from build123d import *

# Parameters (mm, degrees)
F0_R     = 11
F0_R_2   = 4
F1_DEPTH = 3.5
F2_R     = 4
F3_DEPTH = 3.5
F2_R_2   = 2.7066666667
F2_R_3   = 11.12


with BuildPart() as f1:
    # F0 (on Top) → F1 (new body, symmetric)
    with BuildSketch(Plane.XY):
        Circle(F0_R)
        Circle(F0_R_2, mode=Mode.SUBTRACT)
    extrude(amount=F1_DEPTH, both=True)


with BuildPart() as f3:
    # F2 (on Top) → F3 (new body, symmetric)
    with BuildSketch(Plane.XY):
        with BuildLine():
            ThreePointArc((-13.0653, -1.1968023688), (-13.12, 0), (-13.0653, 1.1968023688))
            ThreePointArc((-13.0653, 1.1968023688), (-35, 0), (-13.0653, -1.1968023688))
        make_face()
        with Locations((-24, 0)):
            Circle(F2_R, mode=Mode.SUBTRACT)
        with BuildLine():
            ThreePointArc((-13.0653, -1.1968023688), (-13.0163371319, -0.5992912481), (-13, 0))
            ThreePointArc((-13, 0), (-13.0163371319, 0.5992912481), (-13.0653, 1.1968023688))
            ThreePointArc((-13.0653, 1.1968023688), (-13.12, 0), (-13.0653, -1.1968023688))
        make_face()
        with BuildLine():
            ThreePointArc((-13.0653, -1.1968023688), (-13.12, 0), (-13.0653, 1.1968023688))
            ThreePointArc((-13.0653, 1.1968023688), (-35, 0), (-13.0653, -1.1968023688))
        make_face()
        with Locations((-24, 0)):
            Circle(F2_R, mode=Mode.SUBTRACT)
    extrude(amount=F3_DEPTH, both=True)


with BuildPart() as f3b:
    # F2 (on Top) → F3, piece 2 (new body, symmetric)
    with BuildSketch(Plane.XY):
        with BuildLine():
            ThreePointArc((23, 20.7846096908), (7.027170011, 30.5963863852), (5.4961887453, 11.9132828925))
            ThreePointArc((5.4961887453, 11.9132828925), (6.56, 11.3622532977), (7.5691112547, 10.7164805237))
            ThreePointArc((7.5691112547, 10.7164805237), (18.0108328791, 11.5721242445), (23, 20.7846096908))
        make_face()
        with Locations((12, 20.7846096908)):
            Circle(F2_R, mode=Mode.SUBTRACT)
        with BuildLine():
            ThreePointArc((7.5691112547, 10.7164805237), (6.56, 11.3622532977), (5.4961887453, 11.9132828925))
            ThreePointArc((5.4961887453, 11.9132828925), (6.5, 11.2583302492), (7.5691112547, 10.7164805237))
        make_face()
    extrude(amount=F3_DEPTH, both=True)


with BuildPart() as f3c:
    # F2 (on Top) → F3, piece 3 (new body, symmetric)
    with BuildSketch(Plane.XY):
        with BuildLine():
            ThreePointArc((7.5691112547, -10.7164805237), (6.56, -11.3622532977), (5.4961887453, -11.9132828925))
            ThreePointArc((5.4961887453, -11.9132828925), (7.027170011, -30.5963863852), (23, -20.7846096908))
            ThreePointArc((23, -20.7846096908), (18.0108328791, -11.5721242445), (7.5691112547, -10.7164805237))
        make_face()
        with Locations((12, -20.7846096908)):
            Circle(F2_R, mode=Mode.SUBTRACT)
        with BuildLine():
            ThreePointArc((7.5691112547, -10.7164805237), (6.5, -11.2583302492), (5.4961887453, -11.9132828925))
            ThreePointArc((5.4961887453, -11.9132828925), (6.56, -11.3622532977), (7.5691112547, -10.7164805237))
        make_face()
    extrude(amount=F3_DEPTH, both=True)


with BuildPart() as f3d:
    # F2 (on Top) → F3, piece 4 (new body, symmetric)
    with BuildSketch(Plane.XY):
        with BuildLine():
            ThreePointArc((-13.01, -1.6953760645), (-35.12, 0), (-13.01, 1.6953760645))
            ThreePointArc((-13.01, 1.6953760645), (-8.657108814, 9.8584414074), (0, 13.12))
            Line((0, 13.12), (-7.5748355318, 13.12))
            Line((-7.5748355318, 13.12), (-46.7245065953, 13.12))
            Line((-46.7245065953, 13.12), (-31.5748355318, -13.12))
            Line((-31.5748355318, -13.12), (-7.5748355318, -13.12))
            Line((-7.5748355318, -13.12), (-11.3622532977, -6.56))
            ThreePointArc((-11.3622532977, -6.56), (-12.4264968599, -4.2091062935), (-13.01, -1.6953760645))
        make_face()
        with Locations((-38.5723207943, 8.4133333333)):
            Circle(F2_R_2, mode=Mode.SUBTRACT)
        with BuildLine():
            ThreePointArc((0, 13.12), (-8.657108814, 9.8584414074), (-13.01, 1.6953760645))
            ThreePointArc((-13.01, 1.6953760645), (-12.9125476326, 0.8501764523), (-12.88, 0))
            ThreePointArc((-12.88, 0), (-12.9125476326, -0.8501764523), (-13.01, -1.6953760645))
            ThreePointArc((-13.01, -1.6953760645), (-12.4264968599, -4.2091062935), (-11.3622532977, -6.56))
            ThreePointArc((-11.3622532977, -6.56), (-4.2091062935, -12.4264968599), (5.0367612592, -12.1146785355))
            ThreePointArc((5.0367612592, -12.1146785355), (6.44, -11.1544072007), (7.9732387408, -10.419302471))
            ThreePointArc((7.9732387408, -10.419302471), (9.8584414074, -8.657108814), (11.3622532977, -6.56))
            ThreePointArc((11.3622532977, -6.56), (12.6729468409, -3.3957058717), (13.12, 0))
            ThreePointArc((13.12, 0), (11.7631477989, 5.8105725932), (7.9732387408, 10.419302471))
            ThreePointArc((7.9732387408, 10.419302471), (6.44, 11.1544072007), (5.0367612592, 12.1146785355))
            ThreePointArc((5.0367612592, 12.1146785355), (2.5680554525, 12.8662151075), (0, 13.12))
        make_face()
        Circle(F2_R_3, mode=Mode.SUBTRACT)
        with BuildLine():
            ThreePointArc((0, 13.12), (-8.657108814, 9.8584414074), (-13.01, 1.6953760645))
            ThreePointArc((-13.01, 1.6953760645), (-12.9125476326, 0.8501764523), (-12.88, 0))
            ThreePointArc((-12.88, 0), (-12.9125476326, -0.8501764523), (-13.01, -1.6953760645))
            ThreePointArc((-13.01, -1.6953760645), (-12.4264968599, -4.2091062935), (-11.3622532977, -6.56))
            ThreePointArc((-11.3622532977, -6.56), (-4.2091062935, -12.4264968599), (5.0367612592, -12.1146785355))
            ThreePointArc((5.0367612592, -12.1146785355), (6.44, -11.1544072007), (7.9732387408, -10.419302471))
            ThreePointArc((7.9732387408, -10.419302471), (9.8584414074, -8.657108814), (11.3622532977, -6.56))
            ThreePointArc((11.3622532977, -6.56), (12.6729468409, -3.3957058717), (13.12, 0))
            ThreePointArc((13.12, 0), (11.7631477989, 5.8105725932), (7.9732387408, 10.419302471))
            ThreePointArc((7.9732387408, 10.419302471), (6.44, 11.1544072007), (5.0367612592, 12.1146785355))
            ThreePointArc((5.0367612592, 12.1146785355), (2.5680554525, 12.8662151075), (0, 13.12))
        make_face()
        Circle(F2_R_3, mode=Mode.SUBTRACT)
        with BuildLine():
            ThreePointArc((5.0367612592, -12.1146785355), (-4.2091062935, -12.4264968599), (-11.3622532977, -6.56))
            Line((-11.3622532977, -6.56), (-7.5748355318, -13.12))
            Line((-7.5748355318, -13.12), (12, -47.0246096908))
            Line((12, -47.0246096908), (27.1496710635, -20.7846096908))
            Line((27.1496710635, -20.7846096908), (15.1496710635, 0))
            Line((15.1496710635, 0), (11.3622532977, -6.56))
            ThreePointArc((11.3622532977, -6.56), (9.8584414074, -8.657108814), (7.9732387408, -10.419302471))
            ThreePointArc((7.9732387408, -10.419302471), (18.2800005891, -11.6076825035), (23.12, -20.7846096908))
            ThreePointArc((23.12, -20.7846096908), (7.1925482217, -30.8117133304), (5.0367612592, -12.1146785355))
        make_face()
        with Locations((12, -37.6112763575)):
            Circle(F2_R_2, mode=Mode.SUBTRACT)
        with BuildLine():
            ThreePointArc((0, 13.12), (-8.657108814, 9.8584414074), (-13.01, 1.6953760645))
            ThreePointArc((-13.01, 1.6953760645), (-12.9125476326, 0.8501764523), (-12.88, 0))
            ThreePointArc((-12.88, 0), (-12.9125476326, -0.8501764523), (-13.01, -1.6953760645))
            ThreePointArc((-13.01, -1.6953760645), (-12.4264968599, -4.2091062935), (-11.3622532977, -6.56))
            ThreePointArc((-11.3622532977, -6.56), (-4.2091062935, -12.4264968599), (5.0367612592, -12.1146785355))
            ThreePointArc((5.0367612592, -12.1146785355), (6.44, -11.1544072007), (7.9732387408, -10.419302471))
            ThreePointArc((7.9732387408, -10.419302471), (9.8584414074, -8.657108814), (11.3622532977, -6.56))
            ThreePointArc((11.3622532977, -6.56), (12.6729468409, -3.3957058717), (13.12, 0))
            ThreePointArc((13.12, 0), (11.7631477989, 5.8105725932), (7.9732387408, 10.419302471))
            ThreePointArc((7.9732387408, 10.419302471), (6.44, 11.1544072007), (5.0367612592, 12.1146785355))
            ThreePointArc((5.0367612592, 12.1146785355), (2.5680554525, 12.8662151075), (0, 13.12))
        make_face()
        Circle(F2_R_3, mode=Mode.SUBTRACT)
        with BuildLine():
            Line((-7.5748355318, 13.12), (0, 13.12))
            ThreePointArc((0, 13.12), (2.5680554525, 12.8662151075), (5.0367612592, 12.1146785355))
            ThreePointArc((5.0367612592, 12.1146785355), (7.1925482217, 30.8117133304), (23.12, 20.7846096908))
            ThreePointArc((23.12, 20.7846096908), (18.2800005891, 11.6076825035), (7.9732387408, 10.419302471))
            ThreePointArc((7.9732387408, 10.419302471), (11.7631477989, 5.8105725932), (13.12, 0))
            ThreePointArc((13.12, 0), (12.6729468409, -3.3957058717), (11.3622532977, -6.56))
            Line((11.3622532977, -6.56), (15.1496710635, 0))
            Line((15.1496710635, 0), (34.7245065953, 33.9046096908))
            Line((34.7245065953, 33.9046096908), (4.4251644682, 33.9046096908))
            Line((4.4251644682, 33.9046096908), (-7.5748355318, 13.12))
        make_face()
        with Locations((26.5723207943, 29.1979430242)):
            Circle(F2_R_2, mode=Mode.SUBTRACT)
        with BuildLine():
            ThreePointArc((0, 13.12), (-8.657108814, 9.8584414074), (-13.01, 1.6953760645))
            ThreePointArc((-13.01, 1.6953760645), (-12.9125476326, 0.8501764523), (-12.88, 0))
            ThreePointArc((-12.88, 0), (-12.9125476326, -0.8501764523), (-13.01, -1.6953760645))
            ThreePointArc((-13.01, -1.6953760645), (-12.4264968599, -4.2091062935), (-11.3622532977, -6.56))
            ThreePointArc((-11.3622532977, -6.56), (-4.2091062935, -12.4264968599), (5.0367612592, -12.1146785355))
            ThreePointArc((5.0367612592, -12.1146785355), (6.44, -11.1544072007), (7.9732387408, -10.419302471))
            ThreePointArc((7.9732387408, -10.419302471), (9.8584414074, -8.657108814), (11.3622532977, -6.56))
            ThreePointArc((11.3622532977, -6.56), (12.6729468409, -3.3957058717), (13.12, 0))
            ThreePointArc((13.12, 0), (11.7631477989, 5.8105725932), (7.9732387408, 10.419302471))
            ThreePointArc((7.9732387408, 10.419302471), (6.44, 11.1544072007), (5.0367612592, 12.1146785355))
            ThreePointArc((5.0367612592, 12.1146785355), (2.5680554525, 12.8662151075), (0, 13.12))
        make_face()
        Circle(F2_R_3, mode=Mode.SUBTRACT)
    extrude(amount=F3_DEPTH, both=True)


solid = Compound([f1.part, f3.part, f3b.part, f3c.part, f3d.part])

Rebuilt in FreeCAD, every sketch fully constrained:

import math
import FreeCAD as App
import Part
import Sketcher
Q = App.Units.Quantity

doc = App.newDocument("Part")
body = doc.addObject("PartDesign::Body", "Body")

sketch1 = body.newObject("Sketcher::SketchObject", "Sketch")
sketch1.AttachmentSupport = (doc.getObject("XY_Plane"), [""])
sketch1.MapMode = "FlatFace"
sketch1.addGeometry(Part.Circle(App.Vector(0, 0, 0), App.Vector(0, 0, 1), 11), False)
sketch1.addGeometry(Part.Circle(App.Vector(0, 0, 0), App.Vector(0, 0, 1), 4), False)
sketch1.addConstraint(Sketcher.Constraint("Coincident", 0, 3, -1, 1))
sketch1.addConstraint(Sketcher.Constraint("Coincident", 1, 3, -1, 1))
sketch1.addConstraint(Sketcher.Constraint("Diameter", 0, 22.0))
sketch1.addConstraint(Sketcher.Constraint("Diameter", 1, 8.0))
pad1 = body.newObject("PartDesign::Pad", "Pad")
pad1.Profile = sketch1
pad1.Length = 7
pad1.Midplane = True
body2 = doc.addObject("PartDesign::Body", "Body001")

sketch2 = body2.newObject("Sketcher::SketchObject", "Sketch001")
sketch2.AttachmentSupport = (doc.getObject("XY_Plane001"), [""])
sketch2.MapMode = "FlatFace"
sketch2.addGeometry(Part.ArcOfCircle(Part.Circle(App.Vector(-24, 0, 0), App.Vector(0, 0, 1), 11), math.radians(6), math.radians(354)), False)
sketch2.addGeometry(Part.ArcOfCircle(Part.Circle(App.Vector(-24, 0, 0), App.Vector(0, 0, 1), 11), math.radians(-6.25), math.radians(0)), False)
sketch2.addGeometry(Part.ArcOfCircle(Part.Circle(App.Vector(-24, 0, 0), App.Vector(0, 0, 1), 11), math.radians(0), math.radians(6.25)), False)
sketch2.addGeometry(Part.Circle(App.Vector(-24, 0, 0), App.Vector(0, 0, 1), 4), False)
sketch2.addConstraint(Sketcher.Constraint("Tangent", 0, 2, 1, 1))
sketch2.addConstraint(Sketcher.Constraint("Tangent", 1, 2, 2, 1))
sketch2.addConstraint(Sketcher.Constraint("Tangent", 2, 2, 0, 1))
sketch2.addConstraint(Sketcher.Constraint("Coincident", 3, 3, 0, 3))
sketch2.addConstraint(Sketcher.Constraint("Symmetric", 0, 2, 2, 2, -1))
sketch2.addConstraint(Sketcher.Constraint("PointOnObject", 1, 2, -1))
sketch2.addConstraint(Sketcher.Constraint("Diameter", 3, 8.0))
sketch2.addConstraint(Sketcher.Constraint("Radius", 0, 11.0))
sketch2.addConstraint(Sketcher.Constraint("DistanceX", 0, 3, -1, 1, 24.0))
sketch2.addConstraint(Sketcher.Constraint("DistanceX", 0, 2, -1, 1, 13.0653))
pad2 = body2.newObject("PartDesign::Pad", "Pad001")
pad2.Profile = sketch2
pad2.Length = 7
pad2.Midplane = True
body3 = doc.addObject("PartDesign::Body", "Body002")

sketch3 = body3.newObject("Sketcher::SketchObject", "Sketch002")
sketch3.AttachmentSupport = (doc.getObject("XY_Plane002"), [""])
sketch3.MapMode = "FlatFace"
sketch3.addGeometry(Part.ArcOfCircle(Part.Circle(App.Vector(12, 20.8, 0), App.Vector(0, 0, 1), 11), math.radians(0), math.radians(234)), False)
sketch3.addGeometry(Part.ArcOfCircle(Part.Circle(App.Vector(12, 20.8, 0), App.Vector(0, 0, 1), 11), math.radians(-126.25), math.radians(-113.75)), False)
sketch3.addGeometry(Part.ArcOfCircle(Part.Circle(App.Vector(12, 20.8, 0), App.Vector(0, 0, 1), 11), math.radians(-114), math.radians(0)), False)
sketch3.addGeometry(Part.Circle(App.Vector(12, 20.8, 0), App.Vector(0, 0, 1), 4), False)
sketch3.addConstraint(Sketcher.Constraint("Tangent", 0, 2, 1, 1))
sketch3.addConstraint(Sketcher.Constraint("Tangent", 1, 2, 2, 1))
sketch3.addConstraint(Sketcher.Constraint("Tangent", 2, 2, 0, 1))
sketch3.addConstraint(Sketcher.Constraint("Coincident", 3, 3, 0, 3))
sketch3.addConstraint(Sketcher.Constraint("Horizontal", 3, 3, 2, 2))
sketch3.addConstraint(Sketcher.Constraint("Diameter", 3, 8.0))
sketch3.addConstraint(Sketcher.Constraint("Radius", 0, 11.0))
sketch3.addConstraint(Sketcher.Constraint("DistanceX", -1, 1, 0, 3, 12.0))
sketch3.addConstraint(Sketcher.Constraint("DistanceY", -1, 1, 0, 3, 20.78461))
sketch3.addConstraint(Sketcher.Constraint("DistanceX", -1, 1, 0, 2, 5.496189))
sketch3.addConstraint(Sketcher.Constraint("DistanceX", -1, 1, 1, 2, 7.569111))
pad3 = body3.newObject("PartDesign::Pad", "Pad002")
pad3.Profile = sketch3
pad3.Length = 7
pad3.Midplane = True
body4 = doc.addObject("PartDesign::Body", "Body003")

sketch4 = body4.newObject("Sketcher::SketchObject", "Sketch003")
sketch4.AttachmentSupport = (doc.getObject("XY_Plane003"), [""])
sketch4.MapMode = "FlatFace"
sketch4.addGeometry(Part.ArcOfCircle(Part.Circle(App.Vector(12, -20.8, 0), App.Vector(0, 0, 1), 11), math.radians(0), math.radians(114)), False)
sketch4.addGeometry(Part.ArcOfCircle(Part.Circle(App.Vector(12, -20.8, 0), App.Vector(0, 0, 1), 11), math.radians(113.75), math.radians(126.25)), False)
sketch4.addGeometry(Part.ArcOfCircle(Part.Circle(App.Vector(12, -20.8, 0), App.Vector(0, 0, 1), 11), math.radians(126), math.radians(360)), False)
sketch4.addGeometry(Part.Circle(App.Vector(12, -20.8, 0), App.Vector(0, 0, 1), 4), False)
sketch4.addConstraint(Sketcher.Constraint("Tangent", 0, 2, 1, 1))
sketch4.addConstraint(Sketcher.Constraint("Tangent", 1, 2, 2, 1))
sketch4.addConstraint(Sketcher.Constraint("Tangent", 2, 2, 0, 1))
sketch4.addConstraint(Sketcher.Constraint("Coincident", 3, 3, 0, 3))
sketch4.addConstraint(Sketcher.Constraint("Horizontal", 3, 3, 2, 2))
sketch4.addConstraint(Sketcher.Constraint("Diameter", 3, 8.0))
sketch4.addConstraint(Sketcher.Constraint("Radius", 0, 11.0))
sketch4.addConstraint(Sketcher.Constraint("DistanceX", -1, 1, 0, 3, 12.0))
sketch4.addConstraint(Sketcher.Constraint("DistanceY", 0, 3, -1, 1, 20.78461))
sketch4.addConstraint(Sketcher.Constraint("DistanceX", -1, 1, 0, 2, 7.569111))
sketch4.addConstraint(Sketcher.Constraint("DistanceX", -1, 1, 1, 2, 5.496189))
pad4 = body4.newObject("PartDesign::Pad", "Pad003")
pad4.Profile = sketch4
pad4.Length = 7
pad4.Midplane = True
body5 = doc.addObject("PartDesign::Body", "Body004")

sketch5 = body5.newObject("Sketcher::SketchObject", "Sketch004")
sketch5.AttachmentSupport = (doc.getObject("XY_Plane004"), [""])
sketch5.MapMode = "FlatFace"
sketch5.addGeometry(Part.LineSegment(App.Vector(-46.7, 13.1, 0), App.Vector(-31.6, -13.1, 0)), False)
sketch5.addGeometry(Part.LineSegment(App.Vector(-31.6, -13.1, 0), App.Vector(-7.6, -13.1, 0)), False)
sketch5.addGeometry(Part.LineSegment(App.Vector(-7.6, -13.1, 0), App.Vector(12, -47, 0)), False)
sketch5.addGeometry(Part.LineSegment(App.Vector(12, -47, 0), App.Vector(27.1, -20.8, 0)), False)
sketch5.addGeometry(Part.LineSegment(App.Vector(27.1, -20.8, 0), App.Vector(15.1, 0, 0)), False)
sketch5.addGeometry(Part.LineSegment(App.Vector(15.1, 0, 0), App.Vector(34.7, 33.9, 0)), False)
sketch5.addGeometry(Part.LineSegment(App.Vector(34.7, 33.9, 0), App.Vector(4.4, 33.9, 0)), False)
sketch5.addGeometry(Part.LineSegment(App.Vector(4.4, 33.9, 0), App.Vector(-7.6, 13.1, 0)), False)
sketch5.addGeometry(Part.LineSegment(App.Vector(-7.6, 13.1, 0), App.Vector(-46.7, 13.1, 0)), False)
sketch5.addGeometry(Part.Circle(App.Vector(12, -37.6, 0), App.Vector(0, 0, 1), 2.7), False)
sketch5.addGeometry(Part.ArcOfCircle(Part.Circle(App.Vector(12, -20.8, 0), App.Vector(0, 0, 1), 11.1), math.radians(0), math.radians(111)), False)
sketch5.addGeometry(Part.ArcOfCircle(Part.Circle(App.Vector(12, -20.8, 0), App.Vector(0, 0, 1), 11.1), math.radians(129), math.radians(360)), False)
sketch5.addGeometry(Part.ArcOfCircle(Part.Circle(App.Vector(12, -20.8, 0), App.Vector(0, 0, 1), 11.1), math.radians(111.23), math.radians(128.77)), False)
sketch5.addGeometry(Part.ArcOfCircle(Part.Circle(App.Vector(-24, 0, 0), App.Vector(0, 0, 1), 11.1), math.radians(9), math.radians(351)), False)
sketch5.addGeometry(Part.ArcOfCircle(Part.Circle(App.Vector(-24, 0, 0), App.Vector(0, 0, 1), 11.1), math.radians(0), math.radians(8.77)), False)
sketch5.addGeometry(Part.ArcOfCircle(Part.Circle(App.Vector(-24, 0, 0), App.Vector(0, 0, 1), 11.1), math.radians(-8.77), math.radians(0)), False)
sketch5.addGeometry(Part.Circle(App.Vector(-38.6, 8.4, 0), App.Vector(0, 0, 1), 2.7), False)
sketch5.addGeometry(Part.Circle(App.Vector(0, 0, 0), App.Vector(0, 0, 1), 11.1), False)
sketch5.addGeometry(Part.ArcOfCircle(Part.Circle(App.Vector(12, 20.8, 0), App.Vector(0, 0, 1), 11.1), math.radians(-111), math.radians(0)), False)
sketch5.addGeometry(Part.ArcOfCircle(Part.Circle(App.Vector(12, 20.8, 0), App.Vector(0, 0, 1), 11.1), math.radians(-128.77), math.radians(-111.23)), False)
sketch5.addGeometry(Part.ArcOfCircle(Part.Circle(App.Vector(12, 20.8, 0), App.Vector(0, 0, 1), 11.1), math.radians(0), math.radians(231)), False)
sketch5.addGeometry(Part.Circle(App.Vector(26.6, 29.2, 0), App.Vector(0, 0, 1), 2.7), False)
sketch5.addConstraint(Sketcher.Constraint("Coincident", 0, 2, 1, 1))
sketch5.addConstraint(Sketcher.Constraint("Coincident", 1, 2, 2, 1))
sketch5.addConstraint(Sketcher.Constraint("Coincident", 2, 2, 3, 1))
sketch5.addConstraint(Sketcher.Constraint("Coincident", 3, 2, 4, 1))
sketch5.addConstraint(Sketcher.Constraint("Coincident", 4, 2, 5, 1))
sketch5.addConstraint(Sketcher.Constraint("Coincident", 5, 2, 6, 1))
sketch5.addConstraint(Sketcher.Constraint("Coincident", 6, 2, 7, 1))
sketch5.addConstraint(Sketcher.Constraint("Coincident", 7, 2, 8, 1))
sketch5.addConstraint(Sketcher.Constraint("Coincident", 8, 2, 0, 1))
sketch5.addConstraint(Sketcher.Constraint("Tangent", 10, 1, 11, 2))
sketch5.addConstraint(Sketcher.Constraint("Tangent", 11, 1, 12, 2))
sketch5.addConstraint(Sketcher.Constraint("Tangent", 12, 1, 10, 2))
sketch5.addConstraint(Sketcher.Constraint("Tangent", 13, 1, 14, 2))
sketch5.addConstraint(Sketcher.Constraint("Tangent", 14, 1, 15, 2))
sketch5.addConstraint(Sketcher.Constraint("Tangent", 15, 1, 13, 2))
sketch5.addConstraint(Sketcher.Constraint("Tangent", 18, 1, 19, 2))
sketch5.addConstraint(Sketcher.Constraint("Tangent", 19, 1, 20, 2))
sketch5.addConstraint(Sketcher.Constraint("Tangent", 20, 1, 18, 2))
sketch5.addConstraint(Sketcher.Constraint("Horizontal", 1))
sketch5.addConstraint(Sketcher.Constraint("Horizontal", 6))
sketch5.addConstraint(Sketcher.Constraint("Horizontal", 8))
sketch5.addConstraint(Sketcher.Constraint("Coincident", 17, 3, -1, 1))
sketch5.addConstraint(Sketcher.Constraint("Equal", 12, 13))
sketch5.addConstraint(Sketcher.Constraint("Equal", 9, 16))
sketch5.addConstraint(Sketcher.Constraint("Equal", 15, 17))
sketch5.addConstraint(Sketcher.Constraint("Equal", 17, 18))
sketch5.addConstraint(Sketcher.Constraint("Equal", 16, 21))
sketch5.addConstraint(Sketcher.Constraint("Symmetric", 10, 3, 18, 3, -1))
sketch5.addConstraint(Sketcher.Constraint("Symmetric", 1, 2, 7, 2, -1))
sketch5.addConstraint(Sketcher.Constraint("Symmetric", 13, 1, 15, 1, -1))
sketch5.addConstraint(Sketcher.Constraint("PointOnObject", 4, 2, -1))
sketch5.addConstraint(Sketcher.Constraint("PointOnObject", 14, 1, -1))
sketch5.addConstraint(Sketcher.Constraint("Parallel", 0, 2))
sketch5.addConstraint(Sketcher.Constraint("Parallel", 2, 4))
sketch5.addConstraint(Sketcher.Constraint("Parallel", 3, 5))
sketch5.addConstraint(Sketcher.Constraint("Parallel", 5, 7))
sketch5.addConstraint(Sketcher.Constraint("Horizontal", 12, 3, 3, 2))
sketch5.addConstraint(Sketcher.Constraint("Horizontal", 3, 2, 10, 1))
sketch5.addConstraint(Sketcher.Constraint("Horizontal", 19, 3, 20, 1))
sketch5.addConstraint(Sketcher.Constraint("Vertical", 9, 3, 10, 3))
sketch5.addConstraint(Sketcher.Constraint("Vertical", 20, 3, 2, 2))
sketch5.addConstraint(Sketcher.Constraint("Vertical", 12, 1, 18, 1))
sketch5.addConstraint(Sketcher.Constraint("Vertical", 11, 1, 19, 1))
sketch5.addConstraint(Sketcher.Constraint("Equal", 0, 3))
sketch5.addConstraint(Sketcher.Constraint("Equal", 2, 5))
sketch5.addConstraint(Sketcher.Constraint("Equal", 4, 7))
sketch5.addConstraint(Sketcher.Constraint("Diameter", 17, 22.24))
sketch5.addConstraint(Sketcher.Constraint("DistanceX", 1, 1, 1, 2, 24.0))
sketch5.addConstraint(Sketcher.Constraint("Angle", 0, Q("-60 deg")))
sketch5.addConstraint(Sketcher.Constraint("Distance", 4, 24.0))
sketch5.addConstraint(Sketcher.Constraint("DistanceX", -1, 1, 9, 3, 12.0))
sketch5.addConstraint(Sketcher.Constraint("DistanceX", 13, 3, -1, 1, 24.0))
sketch5.addConstraint(Sketcher.Constraint("DistanceY", 0, 2, -1, 1, 13.12))
sketch5.addConstraint(Sketcher.Constraint("DistanceX", 13, 1, -1, 1, 13.01))
sketch5.addConstraint(Sketcher.Constraint("Diameter", 9, 5.413333))
sketch5.addConstraint(Sketcher.Constraint("DistanceX", 16, 3, -1, 1, 38.572321))
sketch5.addConstraint(Sketcher.Constraint("DistanceX", -1, 1, 21, 3, 26.572321))
sketch5.addConstraint(Sketcher.Constraint("DistanceX", -1, 1, 11, 1, 5.036761))
sketch5.addConstraint(Sketcher.Constraint("DistanceX", -1, 1, 12, 1, 7.973239))
sketch5.addConstraint(Sketcher.Constraint("DistanceY", 9, 3, -1, 1, 37.611276))
sketch5.addConstraint(Sketcher.Constraint("DistanceY", -1, 1, 16, 3, 8.413333))
sketch5.addConstraint(Sketcher.Constraint("DistanceY", -1, 1, 21, 3, 29.197943))
pad5 = body5.newObject("PartDesign::Pad", "Pad004")
pad5.Profile = sketch5
pad5.Length = 7
pad5.Midplane = True

doc.recompute()
